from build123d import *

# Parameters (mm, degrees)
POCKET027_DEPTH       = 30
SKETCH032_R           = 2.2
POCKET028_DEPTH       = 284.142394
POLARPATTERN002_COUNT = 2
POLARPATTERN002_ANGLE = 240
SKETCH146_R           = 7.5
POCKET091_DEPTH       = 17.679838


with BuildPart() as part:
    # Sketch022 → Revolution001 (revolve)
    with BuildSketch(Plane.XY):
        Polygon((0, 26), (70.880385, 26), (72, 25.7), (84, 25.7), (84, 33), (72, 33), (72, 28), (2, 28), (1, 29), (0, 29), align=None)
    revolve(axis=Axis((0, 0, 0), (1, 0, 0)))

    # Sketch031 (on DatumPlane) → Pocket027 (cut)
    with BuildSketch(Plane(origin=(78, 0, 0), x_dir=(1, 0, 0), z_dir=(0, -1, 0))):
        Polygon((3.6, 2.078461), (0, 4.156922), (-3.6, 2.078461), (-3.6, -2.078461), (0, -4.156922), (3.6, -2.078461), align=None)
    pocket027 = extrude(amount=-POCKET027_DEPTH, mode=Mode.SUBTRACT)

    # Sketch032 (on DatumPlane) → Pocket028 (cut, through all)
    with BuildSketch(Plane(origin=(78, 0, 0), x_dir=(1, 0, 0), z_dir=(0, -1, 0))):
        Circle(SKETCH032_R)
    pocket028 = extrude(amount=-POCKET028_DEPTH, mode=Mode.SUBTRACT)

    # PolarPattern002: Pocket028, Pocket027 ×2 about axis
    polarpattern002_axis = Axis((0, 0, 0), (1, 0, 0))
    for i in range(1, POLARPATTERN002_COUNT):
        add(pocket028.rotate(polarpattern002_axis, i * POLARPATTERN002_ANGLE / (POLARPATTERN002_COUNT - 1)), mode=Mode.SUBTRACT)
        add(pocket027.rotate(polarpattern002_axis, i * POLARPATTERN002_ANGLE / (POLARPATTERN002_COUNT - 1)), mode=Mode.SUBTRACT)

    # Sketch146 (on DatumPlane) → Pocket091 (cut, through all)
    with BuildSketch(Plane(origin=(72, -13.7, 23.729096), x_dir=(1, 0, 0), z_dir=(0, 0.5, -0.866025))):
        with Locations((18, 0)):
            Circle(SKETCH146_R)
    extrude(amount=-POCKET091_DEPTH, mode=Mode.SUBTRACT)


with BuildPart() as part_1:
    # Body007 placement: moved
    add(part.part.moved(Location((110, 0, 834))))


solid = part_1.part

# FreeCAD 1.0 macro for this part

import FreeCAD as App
import Part
import Sketcher

V = App.Vector
Q = App.Units.Quantity

doc = App.newDocument("Part")
body = doc.addObject("PartDesign::Body", "Body")

# Sketch on XY plane
sketch1 = doc.addObject("Sketcher::SketchObject", "Sketch")
body.addObject(sketch1)
sketch1.AttachmentSupport = (doc.XY_Plane, [""])
sketch1.MapMode = "FlatFace"
sketch1.addGeometry(Part.LineSegment(V(0, 26, 0), V(70.9, 26, 0)), False)
sketch1.addGeometry(Part.LineSegment(V(70.9, 26, 0), V(72, 25.7, 0)), False)
sketch1.addGeometry(Part.LineSegment(V(72, 25.7, 0), V(84, 25.7, 0)), False)
sketch1.addGeometry(Part.LineSegment(V(84, 25.7, 0), V(84, 33, 0)), False)
sketch1.addGeometry(Part.LineSegment(V(84, 33, 0), V(72, 33, 0)), False)
sketch1.addGeometry(Part.LineSegment(V(72, 33, 0), V(72, 28, 0)), False)
sketch1.addGeometry(Part.LineSegment(V(72, 28, 0), V(2, 28, 0)), False)
sketch1.addGeometry(Part.LineSegment(V(2, 28, 0), V(1, 29, 0)), False)
sketch1.addGeometry(Part.LineSegment(V(1, 29, 0), V(0, 29, 0)), False)
sketch1.addGeometry(Part.LineSegment(V(0, 29, 0), V(0, 26, 0)), False)
sketch1.addConstraint(Sketcher.Constraint("Coincident", 0, 2, 1, 1))
sketch1.addConstraint(Sketcher.Constraint("Coincident", 1, 2, 2, 1))
sketch1.addConstraint(Sketcher.Constraint("Coincident", 2, 2, 3, 1))
sketch1.addConstraint(Sketcher.Constraint("Coincident", 3, 2, 4, 1))
sketch1.addConstraint(Sketcher.Constraint("Coincident", 4, 2, 5, 1))
sketch1.addConstraint(Sketcher.Constraint("Coincident", 5, 2, 6, 1))
sketch1.addConstraint(Sketcher.Constraint("Coincident", 6, 2, 7, 1))
sketch1.addConstraint(Sketcher.Constraint("Coincident", 7, 2, 8, 1))
sketch1.addConstraint(Sketcher.Constraint("Coincident", 8, 2, 9, 1))
sketch1.addConstraint(Sketcher.Constraint("Coincident", 9, 2, 0, 1))
sketch1.addConstraint(Sketcher.Constraint("Horizontal", 0))
sketch1.addConstraint(Sketcher.Constraint("Horizontal", 2))
sketch1.addConstraint(Sketcher.Constraint("Vertical", 3))
sketch1.addConstraint(Sketcher.Constraint("Horizontal", 4))
sketch1.addConstraint(Sketcher.Constraint("Vertical", 5))
sketch1.addConstraint(Sketcher.Constraint("Horizontal", 6))
sketch1.addConstraint(Sketcher.Constraint("Horizontal", 8))
sketch1.addConstraint(Sketcher.Constraint("Vertical", 9))
sketch1.addConstraint(Sketcher.Constraint("PointOnObject", 8, 2, -2))
sketch1.addConstraint(Sketcher.Constraint("Vertical", 1, 2, 4, 2))
sketch1.addConstraint(Sketcher.Constraint("DistanceX", 2, 1, 2, 2, 12.0))
sketch1.addConstraint(Sketcher.Constraint("DistanceX", 6, 2, 6, 1, 70.0))
sketch1.addConstraint(Sketcher.Constraint("DistanceX", 8, 2, 8, 1, 1.0))
sketch1.addConstraint(Sketcher.Constraint("DistanceY", 5, 2, 5, 1, 5.0))
sketch1.addConstraint(Sketcher.Constraint("DistanceY", 9, 2, 9, 1, 3.0))
sketch1.addConstraint(Sketcher.Constraint("Angle", 1, Q("-15.000003 deg")))
sketch1.addConstraint(Sketcher.Constraint("Angle", 7, Q("135 deg")))
sketch1.addConstraint(Sketcher.Constraint("DistanceY", 3, 1, 3, 2, 7.3))
sketch1.addConstraint(Sketcher.Constraint("DistanceY", -1, 1, 0, 2, 26.0))
sketch1.addConstraint(Sketcher.Constraint("DistanceX", -1, 1, 1, 2, 72.0))
revolution = doc.addObject("PartDesign::Revolution", "Revolution")
body.addObject(revolution)
revolution.Profile = sketch1
revolution.ReferenceAxis = (sketch1, ["H_Axis"])
revolution.Angle = 360

# Sketch on XZ plane
sketch2 = doc.addObject("Sketcher::SketchObject", "Sketch001")
body.addObject(sketch2)
sketch2.AttachmentSupport = (doc.XZ_Plane, [""])
sketch2.MapMode = "FlatFace"
sketch2.addGeometry(Part.LineSegment(V(81.6, 2.1, 0), V(78, 4.2, 0)), False)
sketch2.addGeometry(Part.LineSegment(V(78, 4.2, 0), V(74.4, 2.1, 0)), False)
sketch2.addGeometry(Part.LineSegment(V(74.4, 2.1, 0), V(74.4, -2.1, 0)), False)
sketch2.addGeometry(Part.LineSegment(V(74.4, -2.1, 0), V(78, -4.2, 0)), False)
sketch2.addGeometry(Part.LineSegment(V(78, -4.2, 0), V(81.6, -2.1, 0)), False)
sketch2.addGeometry(Part.LineSegment(V(81.6, -2.1, 0), V(81.6, 2.1, 0)), False)
sketch2.addConstraint(Sketcher.Constraint("Coincident", 0, 2, 1, 1))
sketch2.addConstraint(Sketcher.Constraint("Coincident", 1, 2, 2, 1))
sketch2.addConstraint(Sketcher.Constraint("Coincident", 2, 2, 3, 1))
sketch2.addConstraint(Sketcher.Constraint("Coincident", 3, 2, 4, 1))
sketch2.addConstraint(Sketcher.Constraint("Coincident", 4, 2, 5, 1))
sketch2.addConstraint(Sketcher.Constraint("Coincident", 5, 2, 0, 1))
sketch2.addConstraint(Sketcher.Constraint("Vertical", 2))
sketch2.addConstraint(Sketcher.Constraint("Vertical", 5))
sketch2.addConstraint(Sketcher.Constraint("Symmetric", 0, 2, 3, 2, -1))
sketch2.addConstraint(Sketcher.Constraint("Parallel", 0, 3))
sketch2.addConstraint(Sketcher.Constraint("Parallel", 1, 4))
sketch2.addConstraint(Sketcher.Constraint("Horizontal", 2, 2, 4, 2))
sketch2.addConstraint(Sketcher.Constraint("Horizontal", 1, 2, 5, 2))
sketch2.addConstraint(Sketcher.Constraint("Angle", 0, Q("150 deg")))
sketch2.addConstraint(Sketcher.Constraint("DistanceX", -1, 1, 0, 2, 78.0))
sketch2.addConstraint(Sketcher.Constraint("DistanceX", -1, 1, 1, 2, 74.4))
sketch2.addConstraint(Sketcher.Constraint("DistanceY", 2, 2, 2, 1, 4.156922))
pocket1 = doc.addObject("PartDesign::Pocket", "Pocket")
body.addObject(pocket1)
pocket1.Profile = sketch2
pocket1.Length = 30

# Sketch on XZ plane
sketch3 = doc.addObject("Sketcher::SketchObject", "Sketch002")
body.addObject(sketch3)
sketch3.AttachmentSupport = (doc.XZ_Plane, [""])
sketch3.MapMode = "FlatFace"
sketch3.addGeometry(Part.Circle(V(78, 0, 0), V(0, 0, 1), 2.2), False)
sketch3.addConstraint(Sketcher.Constraint("PointOnObject", 0, 3, -1))
sketch3.addConstraint(Sketcher.Constraint("Diameter", 0, 4.4))
sketch3.addConstraint(Sketcher.Constraint("DistanceX", -1, 1, 0, 3, 78.0))
pocket2 = doc.addObject("PartDesign::Pocket", "Pocket001")
body.addObject(pocket2)
pocket2.Profile = sketch3
pocket2.Type = "ThroughAll"
doc.recompute()

polarpattern = doc.addObject("PartDesign::PolarPattern", "PolarPattern")
body.addObject(polarpattern)
polarpattern.Originals = [pocket2, pocket1]
polarpattern.Axis = (doc.X_Axis, [""])
polarpattern.Angle = 240
polarpattern.Occurrences = 2
body.Tip = polarpattern

# Sketch on an angled plane
sketch4 = doc.addObject("Sketcher::SketchObject", "Sketch003")
body.addObject(sketch4)
sketch4.Placement = App.Placement(V(72, -13.7, 23.729096), App.Rotation(V(1, 0, 0), V(0, -0.866025303, -0.500000175), V(0, 0.500000175, -0.866025303), "ZXY"))
sketch4.addGeometry(Part.Circle(V(18, 0, 0), V(0, 0, 1), 8), False)
sketch4.addConstraint(Sketcher.Constraint("PointOnObject", 0, 3, -1))
sketch4.addConstraint(Sketcher.Constraint("Diameter", 0, 15.0))
sketch4.addConstraint(Sketcher.Constraint("DistanceX", -1, 1, 0, 3, 18.0))
pocket3 = doc.addObject("PartDesign::Pocket", "Pocket002")
body.addObject(pocket3)
pocket3.Profile = sketch4
pocket3.Type = "ThroughAll"
body2 = doc.addObject("PartDesign::Body", "Body001")
doc.recompute()

body.Placement = App.Placement(V(110, 0, 834), App.Rotation(V(0, 0, 1), 0))
boolean = doc.addObject("PartDesign::Boolean", "Boolean")
body2.addObject(boolean)
boolean.Type = "Fuse"
boolean.addObjects([body])

doc.recompute()
